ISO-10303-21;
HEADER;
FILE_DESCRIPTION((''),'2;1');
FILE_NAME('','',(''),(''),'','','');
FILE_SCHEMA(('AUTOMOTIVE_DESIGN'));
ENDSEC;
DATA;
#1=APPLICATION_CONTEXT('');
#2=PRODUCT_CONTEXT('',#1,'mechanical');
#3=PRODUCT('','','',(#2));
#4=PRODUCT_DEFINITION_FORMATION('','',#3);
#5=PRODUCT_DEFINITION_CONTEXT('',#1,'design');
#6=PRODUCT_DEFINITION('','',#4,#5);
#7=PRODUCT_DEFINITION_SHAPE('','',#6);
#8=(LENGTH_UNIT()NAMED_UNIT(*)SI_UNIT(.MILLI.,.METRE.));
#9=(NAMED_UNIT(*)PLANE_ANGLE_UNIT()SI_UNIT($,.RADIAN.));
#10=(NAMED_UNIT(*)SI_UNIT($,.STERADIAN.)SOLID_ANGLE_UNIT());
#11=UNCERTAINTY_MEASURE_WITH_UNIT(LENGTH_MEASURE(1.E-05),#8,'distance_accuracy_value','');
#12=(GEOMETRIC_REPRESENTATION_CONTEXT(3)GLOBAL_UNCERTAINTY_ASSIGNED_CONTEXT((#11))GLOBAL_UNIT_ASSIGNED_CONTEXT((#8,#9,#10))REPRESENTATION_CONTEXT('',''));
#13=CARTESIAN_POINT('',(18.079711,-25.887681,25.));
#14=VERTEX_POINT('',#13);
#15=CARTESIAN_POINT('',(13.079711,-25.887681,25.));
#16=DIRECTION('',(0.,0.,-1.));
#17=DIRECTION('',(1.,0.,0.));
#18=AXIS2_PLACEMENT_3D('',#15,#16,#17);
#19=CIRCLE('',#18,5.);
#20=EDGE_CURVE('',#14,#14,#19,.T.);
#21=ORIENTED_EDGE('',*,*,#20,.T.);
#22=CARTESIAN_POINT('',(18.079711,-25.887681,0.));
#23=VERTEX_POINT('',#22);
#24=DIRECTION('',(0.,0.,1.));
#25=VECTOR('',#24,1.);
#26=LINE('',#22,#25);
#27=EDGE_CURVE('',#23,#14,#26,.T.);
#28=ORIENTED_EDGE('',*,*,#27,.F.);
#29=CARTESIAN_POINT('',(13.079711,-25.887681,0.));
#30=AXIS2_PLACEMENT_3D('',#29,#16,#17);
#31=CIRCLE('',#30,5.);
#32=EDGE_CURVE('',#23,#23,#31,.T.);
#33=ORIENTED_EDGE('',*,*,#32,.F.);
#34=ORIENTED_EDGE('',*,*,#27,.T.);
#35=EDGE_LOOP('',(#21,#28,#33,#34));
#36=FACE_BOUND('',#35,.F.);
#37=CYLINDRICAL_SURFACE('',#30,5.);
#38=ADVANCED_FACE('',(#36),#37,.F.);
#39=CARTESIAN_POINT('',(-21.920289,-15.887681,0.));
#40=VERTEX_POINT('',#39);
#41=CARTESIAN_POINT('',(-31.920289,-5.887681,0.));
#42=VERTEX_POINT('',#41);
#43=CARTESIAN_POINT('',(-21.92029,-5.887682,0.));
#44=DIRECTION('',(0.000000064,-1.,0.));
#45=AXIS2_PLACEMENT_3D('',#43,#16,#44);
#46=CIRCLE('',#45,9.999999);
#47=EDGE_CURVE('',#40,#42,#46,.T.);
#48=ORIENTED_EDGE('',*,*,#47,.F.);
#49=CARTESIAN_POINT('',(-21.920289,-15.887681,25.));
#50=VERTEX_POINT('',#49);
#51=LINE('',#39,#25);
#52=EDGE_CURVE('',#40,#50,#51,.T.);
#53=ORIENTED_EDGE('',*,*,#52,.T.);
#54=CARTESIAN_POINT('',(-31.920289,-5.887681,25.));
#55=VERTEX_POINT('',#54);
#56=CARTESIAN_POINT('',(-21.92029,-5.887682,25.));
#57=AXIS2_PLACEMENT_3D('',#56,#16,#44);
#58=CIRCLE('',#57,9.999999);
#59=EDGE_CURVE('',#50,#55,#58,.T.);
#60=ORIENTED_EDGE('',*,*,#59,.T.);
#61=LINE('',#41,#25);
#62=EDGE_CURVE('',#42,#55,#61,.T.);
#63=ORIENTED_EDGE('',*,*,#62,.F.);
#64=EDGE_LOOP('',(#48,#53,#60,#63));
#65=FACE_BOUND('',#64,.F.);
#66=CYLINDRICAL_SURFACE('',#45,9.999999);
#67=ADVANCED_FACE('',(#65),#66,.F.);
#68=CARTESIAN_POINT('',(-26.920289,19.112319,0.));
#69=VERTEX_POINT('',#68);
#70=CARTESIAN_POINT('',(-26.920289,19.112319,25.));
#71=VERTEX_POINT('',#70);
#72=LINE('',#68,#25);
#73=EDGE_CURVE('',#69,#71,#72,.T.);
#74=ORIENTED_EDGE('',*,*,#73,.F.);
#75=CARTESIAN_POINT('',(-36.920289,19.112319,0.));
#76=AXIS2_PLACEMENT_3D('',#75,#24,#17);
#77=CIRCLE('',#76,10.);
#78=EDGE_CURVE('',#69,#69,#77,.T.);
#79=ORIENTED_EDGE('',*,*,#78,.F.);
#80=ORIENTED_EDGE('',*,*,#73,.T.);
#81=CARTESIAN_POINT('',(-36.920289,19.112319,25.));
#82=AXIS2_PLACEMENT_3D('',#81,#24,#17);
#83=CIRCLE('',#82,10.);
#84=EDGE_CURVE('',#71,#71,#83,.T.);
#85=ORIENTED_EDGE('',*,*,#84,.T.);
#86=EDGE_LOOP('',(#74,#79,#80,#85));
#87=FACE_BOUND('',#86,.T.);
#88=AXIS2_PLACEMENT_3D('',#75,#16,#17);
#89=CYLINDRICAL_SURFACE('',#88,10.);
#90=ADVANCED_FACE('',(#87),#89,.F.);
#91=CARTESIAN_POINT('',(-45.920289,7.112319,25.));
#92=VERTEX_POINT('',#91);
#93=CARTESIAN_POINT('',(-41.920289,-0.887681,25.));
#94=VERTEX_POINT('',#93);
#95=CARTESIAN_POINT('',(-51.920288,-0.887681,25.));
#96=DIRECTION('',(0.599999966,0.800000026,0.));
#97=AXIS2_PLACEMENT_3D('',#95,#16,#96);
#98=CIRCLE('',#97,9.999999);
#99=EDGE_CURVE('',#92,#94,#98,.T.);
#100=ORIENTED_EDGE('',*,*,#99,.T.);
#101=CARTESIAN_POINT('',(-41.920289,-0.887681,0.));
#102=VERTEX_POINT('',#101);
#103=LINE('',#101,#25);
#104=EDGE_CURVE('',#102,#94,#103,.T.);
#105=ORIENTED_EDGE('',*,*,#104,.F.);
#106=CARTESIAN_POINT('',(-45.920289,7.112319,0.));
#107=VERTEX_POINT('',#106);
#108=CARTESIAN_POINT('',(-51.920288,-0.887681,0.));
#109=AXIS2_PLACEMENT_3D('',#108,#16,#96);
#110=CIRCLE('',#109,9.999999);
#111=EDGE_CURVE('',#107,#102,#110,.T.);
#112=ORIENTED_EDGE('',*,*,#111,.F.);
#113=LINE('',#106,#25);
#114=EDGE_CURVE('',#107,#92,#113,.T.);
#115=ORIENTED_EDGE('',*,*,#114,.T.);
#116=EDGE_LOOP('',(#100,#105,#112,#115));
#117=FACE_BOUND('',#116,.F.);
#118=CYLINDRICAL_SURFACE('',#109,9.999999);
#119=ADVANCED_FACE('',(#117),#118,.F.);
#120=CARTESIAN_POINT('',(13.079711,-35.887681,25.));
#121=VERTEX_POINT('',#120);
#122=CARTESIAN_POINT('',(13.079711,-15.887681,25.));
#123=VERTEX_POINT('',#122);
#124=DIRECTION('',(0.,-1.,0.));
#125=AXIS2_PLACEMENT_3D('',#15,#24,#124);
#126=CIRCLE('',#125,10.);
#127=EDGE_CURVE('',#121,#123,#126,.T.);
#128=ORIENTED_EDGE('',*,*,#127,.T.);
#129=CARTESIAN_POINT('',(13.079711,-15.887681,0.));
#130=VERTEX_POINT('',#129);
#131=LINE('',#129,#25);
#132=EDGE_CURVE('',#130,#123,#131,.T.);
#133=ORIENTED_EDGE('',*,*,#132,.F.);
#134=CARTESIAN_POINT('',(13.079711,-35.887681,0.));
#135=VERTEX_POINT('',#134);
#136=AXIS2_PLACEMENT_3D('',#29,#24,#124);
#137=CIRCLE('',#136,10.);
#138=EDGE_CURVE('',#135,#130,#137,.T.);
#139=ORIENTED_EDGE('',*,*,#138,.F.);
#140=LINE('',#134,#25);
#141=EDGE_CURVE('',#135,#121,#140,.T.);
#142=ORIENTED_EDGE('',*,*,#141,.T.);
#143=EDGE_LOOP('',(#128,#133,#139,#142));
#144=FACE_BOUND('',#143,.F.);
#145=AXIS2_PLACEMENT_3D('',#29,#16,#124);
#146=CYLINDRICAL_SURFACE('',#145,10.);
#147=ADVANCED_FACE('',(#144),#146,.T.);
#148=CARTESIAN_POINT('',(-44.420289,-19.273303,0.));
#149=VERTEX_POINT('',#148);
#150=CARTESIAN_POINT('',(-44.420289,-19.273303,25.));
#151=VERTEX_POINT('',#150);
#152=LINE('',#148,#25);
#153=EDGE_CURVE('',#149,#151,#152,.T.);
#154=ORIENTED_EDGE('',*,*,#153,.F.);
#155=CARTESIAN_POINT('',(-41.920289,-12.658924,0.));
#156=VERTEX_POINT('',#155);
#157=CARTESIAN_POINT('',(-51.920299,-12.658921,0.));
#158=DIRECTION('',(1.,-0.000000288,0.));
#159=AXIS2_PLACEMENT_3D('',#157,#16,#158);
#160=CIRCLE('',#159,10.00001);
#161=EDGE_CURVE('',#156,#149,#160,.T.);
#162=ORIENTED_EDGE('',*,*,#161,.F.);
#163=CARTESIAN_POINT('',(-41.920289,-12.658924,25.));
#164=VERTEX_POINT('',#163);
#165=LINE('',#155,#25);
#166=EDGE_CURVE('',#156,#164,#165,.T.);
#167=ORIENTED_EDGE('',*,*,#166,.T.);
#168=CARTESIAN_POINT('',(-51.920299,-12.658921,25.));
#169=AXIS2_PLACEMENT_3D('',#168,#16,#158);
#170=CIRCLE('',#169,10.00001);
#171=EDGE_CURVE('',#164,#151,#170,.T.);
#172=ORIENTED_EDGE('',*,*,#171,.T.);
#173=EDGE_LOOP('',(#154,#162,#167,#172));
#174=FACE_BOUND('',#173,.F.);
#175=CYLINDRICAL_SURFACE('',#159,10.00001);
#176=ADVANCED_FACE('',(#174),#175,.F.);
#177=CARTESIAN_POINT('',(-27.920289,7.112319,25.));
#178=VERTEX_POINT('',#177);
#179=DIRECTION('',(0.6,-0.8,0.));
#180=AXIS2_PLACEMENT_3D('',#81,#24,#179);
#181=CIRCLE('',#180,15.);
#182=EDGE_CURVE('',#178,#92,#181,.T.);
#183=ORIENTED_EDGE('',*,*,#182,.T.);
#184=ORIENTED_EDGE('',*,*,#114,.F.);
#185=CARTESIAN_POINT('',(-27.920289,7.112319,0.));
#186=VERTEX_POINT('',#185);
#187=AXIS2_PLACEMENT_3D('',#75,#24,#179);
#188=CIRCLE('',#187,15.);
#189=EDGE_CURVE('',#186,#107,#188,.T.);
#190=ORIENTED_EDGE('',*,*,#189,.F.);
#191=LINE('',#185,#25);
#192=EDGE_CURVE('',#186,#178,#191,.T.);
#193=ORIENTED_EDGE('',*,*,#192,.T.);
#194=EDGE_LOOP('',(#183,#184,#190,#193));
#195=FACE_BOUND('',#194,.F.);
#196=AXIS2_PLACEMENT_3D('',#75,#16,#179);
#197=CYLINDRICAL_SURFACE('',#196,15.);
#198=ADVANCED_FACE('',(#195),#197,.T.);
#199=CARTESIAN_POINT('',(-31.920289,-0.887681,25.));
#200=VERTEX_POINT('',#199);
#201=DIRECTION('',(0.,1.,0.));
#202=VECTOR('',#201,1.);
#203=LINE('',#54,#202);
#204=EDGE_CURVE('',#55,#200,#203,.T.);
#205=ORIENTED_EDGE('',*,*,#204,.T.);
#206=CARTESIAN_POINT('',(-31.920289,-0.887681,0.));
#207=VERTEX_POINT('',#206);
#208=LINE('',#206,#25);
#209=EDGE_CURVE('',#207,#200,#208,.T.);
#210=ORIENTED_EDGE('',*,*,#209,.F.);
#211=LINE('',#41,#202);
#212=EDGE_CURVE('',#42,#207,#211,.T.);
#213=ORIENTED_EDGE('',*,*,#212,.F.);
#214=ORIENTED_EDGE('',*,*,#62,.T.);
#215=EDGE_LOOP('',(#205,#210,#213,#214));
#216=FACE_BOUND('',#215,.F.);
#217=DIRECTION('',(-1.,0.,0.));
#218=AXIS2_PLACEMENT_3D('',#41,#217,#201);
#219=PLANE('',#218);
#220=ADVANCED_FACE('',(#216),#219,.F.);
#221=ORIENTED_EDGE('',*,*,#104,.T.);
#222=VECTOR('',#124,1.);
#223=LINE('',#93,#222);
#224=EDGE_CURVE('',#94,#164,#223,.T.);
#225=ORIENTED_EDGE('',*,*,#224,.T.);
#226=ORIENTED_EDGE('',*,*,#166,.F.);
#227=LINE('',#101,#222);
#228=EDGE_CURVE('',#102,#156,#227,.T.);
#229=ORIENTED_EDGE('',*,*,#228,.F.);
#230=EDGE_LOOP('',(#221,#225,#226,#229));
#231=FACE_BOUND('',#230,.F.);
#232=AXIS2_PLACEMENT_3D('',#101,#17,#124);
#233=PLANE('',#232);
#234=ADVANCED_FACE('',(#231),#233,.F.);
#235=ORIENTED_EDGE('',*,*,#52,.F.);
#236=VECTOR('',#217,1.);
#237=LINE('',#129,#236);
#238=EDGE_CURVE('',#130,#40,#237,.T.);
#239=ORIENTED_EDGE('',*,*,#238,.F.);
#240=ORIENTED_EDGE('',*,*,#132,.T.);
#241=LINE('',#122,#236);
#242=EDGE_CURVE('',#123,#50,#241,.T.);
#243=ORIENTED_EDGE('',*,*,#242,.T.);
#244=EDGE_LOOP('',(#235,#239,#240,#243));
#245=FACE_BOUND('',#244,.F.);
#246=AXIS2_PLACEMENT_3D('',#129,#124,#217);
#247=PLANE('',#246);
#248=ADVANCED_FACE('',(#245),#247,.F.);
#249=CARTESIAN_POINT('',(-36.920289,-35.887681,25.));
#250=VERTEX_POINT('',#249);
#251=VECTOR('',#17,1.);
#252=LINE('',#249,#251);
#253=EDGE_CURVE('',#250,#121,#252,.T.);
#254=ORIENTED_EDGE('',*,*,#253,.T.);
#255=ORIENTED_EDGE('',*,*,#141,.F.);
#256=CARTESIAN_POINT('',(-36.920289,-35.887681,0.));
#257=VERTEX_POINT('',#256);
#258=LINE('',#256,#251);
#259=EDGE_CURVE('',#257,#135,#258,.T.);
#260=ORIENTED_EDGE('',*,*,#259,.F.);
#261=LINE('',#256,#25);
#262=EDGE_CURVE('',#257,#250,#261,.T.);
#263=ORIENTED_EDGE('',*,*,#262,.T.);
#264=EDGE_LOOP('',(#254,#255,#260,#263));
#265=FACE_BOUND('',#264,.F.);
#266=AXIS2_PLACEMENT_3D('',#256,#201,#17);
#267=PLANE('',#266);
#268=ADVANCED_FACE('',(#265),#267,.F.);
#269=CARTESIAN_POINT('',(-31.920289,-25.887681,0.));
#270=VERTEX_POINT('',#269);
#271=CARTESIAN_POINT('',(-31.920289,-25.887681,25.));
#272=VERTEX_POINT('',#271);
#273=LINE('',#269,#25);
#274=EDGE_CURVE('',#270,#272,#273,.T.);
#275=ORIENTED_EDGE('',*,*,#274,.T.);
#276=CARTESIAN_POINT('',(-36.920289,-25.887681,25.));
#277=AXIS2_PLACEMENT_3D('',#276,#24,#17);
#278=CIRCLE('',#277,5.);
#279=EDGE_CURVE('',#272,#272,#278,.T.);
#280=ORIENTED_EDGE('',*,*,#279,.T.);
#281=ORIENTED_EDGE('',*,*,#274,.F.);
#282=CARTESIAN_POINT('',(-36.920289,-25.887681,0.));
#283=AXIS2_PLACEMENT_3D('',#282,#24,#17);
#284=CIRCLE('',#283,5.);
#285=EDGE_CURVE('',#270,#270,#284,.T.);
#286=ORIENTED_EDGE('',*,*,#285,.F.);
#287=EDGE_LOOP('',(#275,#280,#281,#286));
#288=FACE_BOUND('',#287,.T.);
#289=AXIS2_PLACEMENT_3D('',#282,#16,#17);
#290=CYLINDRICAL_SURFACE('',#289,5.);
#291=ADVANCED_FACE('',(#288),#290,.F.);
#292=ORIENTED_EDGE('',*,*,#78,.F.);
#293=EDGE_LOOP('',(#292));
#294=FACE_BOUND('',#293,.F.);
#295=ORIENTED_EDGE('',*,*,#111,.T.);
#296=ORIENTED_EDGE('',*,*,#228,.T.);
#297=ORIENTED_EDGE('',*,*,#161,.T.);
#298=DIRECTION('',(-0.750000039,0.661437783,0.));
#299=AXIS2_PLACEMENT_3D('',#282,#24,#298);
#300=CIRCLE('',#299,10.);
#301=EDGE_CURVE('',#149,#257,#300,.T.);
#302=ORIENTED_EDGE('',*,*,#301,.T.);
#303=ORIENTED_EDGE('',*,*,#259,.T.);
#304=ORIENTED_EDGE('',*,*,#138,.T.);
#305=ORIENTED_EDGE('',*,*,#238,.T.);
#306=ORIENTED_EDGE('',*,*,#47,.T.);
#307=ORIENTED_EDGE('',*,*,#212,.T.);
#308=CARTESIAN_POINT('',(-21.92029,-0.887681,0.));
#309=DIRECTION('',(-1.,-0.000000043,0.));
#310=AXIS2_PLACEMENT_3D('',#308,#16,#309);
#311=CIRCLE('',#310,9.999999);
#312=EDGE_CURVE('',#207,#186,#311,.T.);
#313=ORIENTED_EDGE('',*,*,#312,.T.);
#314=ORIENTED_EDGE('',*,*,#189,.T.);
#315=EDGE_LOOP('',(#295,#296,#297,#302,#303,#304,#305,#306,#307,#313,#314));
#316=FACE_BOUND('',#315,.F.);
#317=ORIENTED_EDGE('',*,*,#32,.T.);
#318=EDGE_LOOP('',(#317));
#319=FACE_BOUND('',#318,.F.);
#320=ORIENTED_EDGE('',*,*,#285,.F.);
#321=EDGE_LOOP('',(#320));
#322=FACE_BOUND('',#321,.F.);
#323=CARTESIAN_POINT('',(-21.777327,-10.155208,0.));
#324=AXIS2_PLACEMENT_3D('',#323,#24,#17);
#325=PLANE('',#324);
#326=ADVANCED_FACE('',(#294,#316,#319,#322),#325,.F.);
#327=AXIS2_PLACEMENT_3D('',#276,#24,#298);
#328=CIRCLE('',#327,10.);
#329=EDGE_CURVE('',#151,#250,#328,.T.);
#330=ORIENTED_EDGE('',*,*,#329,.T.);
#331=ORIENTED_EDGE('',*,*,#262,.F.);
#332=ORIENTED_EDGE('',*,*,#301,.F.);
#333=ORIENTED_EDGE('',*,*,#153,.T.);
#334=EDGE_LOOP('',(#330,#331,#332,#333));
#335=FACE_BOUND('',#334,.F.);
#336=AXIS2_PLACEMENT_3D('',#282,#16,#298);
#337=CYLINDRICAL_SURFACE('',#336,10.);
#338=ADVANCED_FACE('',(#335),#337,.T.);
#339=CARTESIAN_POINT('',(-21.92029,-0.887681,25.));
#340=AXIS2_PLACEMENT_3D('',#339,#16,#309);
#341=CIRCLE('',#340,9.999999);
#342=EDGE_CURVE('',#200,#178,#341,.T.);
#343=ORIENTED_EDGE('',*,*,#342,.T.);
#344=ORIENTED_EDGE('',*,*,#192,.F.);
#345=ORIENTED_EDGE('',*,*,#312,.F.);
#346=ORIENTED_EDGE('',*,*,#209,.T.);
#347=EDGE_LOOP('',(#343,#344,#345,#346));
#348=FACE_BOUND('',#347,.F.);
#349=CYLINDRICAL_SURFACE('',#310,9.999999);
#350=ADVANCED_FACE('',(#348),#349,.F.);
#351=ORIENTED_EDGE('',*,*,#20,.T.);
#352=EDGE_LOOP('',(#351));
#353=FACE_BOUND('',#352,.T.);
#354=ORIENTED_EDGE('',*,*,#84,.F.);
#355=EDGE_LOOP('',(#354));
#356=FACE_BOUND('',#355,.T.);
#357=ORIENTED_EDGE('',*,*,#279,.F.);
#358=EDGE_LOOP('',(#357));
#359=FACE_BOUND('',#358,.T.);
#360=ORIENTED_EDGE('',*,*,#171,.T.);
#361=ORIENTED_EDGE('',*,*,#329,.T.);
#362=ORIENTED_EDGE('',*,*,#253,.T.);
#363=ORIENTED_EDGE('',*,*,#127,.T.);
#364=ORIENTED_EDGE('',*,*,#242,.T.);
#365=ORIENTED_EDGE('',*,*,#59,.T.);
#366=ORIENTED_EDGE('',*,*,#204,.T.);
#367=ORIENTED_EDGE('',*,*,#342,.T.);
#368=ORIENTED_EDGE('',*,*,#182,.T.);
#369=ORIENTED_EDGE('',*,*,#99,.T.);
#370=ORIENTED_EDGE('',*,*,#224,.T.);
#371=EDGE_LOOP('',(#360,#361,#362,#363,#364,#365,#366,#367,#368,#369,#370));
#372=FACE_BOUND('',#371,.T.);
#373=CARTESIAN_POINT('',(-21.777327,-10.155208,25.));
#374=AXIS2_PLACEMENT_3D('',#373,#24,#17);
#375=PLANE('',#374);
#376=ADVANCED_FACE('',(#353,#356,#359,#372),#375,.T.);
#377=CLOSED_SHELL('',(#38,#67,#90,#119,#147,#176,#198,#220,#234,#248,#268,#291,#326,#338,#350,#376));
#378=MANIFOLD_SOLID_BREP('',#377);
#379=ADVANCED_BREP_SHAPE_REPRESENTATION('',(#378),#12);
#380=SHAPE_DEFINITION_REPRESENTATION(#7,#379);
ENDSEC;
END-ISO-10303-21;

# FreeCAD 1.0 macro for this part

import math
import FreeCAD as App
import Part
import Sketcher

V = App.Vector
Q = App.Units.Quantity

doc = App.newDocument("Part")
params = doc.addObject("Spreadsheet::Sheet", "Params")
for row, (alias, value) in enumerate([
    ("sketch1_diameter", "10 mm"),
    ("sketch1_diameter2", "20 mm"),
    ("sketch1_radius", "15 mm"),
    ("sketch1_width", "50 mm"),
    ("sketch1_width2", "35 mm"),
    ("pad1_length", "25 mm"),
], start=1):
    params.set(f"A{row}", alias)
    params.set(f"B{row}", "=" + value)
    params.setAlias(f"B{row}", alias)

body = doc.addObject("PartDesign::Body", "Body")

# Sketch on XY plane
sketch1 = body.newObject("Sketcher::SketchObject", "Sketch")
sketch1.AttachmentSupport = (doc.getObject("XY_Plane"), [""])
sketch1.MapMode = "FlatFace"
sketch1.addGeometry([
    Part.ArcOfCircle(Part.Circle(V(-37, -26, 0), V(0, 0, 1), 10), math.radians(139), math.radians(270)),  # 0
    Part.LineSegment(V(-37, -36, 0), V(13, -36, 0)),  # 1
    Part.ArcOfCircle(Part.Circle(V(13, -26, 0), V(0, 0, 1), 10), math.radians(-90), math.radians(90)),  # 2
    Part.LineSegment(V(13, -16, 0), V(-22, -16, 0)),  # 3
    Part.ArcOfCircle(Part.Circle(V(-22, -6, 0), V(0, 0, 1), 10), math.radians(180), math.radians(270)),  # 4
    Part.LineSegment(V(-32, -6, 0), V(-32, -1, 0)),  # 5
    Part.ArcOfCircle(Part.Circle(V(-22, -1, 0), V(0, 0, 1), 10), math.radians(127), math.radians(180)),  # 6
    Part.ArcOfCircle(Part.Circle(V(-37, 19, 0), V(0, 0, 1), 15), math.radians(-53), math.radians(233)),  # 7
    Part.ArcOfCircle(Part.Circle(V(-52, -1, 0), V(0, 0, 1), 10), math.radians(0), math.radians(53)),  # 8
    Part.LineSegment(V(-42, -1, 0), V(-42, -13, 0)),  # 9
    Part.ArcOfCircle(Part.Circle(V(-52, -13, 0), V(0, 0, 1), 10), math.radians(-41), math.radians(0)),  # 10
    Part.Circle(V(-37, -26, 0), V(0, 0, 1), 5),  # 11
    Part.Circle(V(13, -26, 0), V(0, 0, 1), 5),  # 12
    Part.Circle(V(-37, 19, 0), V(0, 0, 1), 10),  # 13
], False)
sketch1.addConstraint([
    Sketcher.Constraint("Tangent", 0, 2, 1, 1),
    Sketcher.Constraint("Tangent", 1, 2, 2, 1),
    Sketcher.Constraint("Tangent", 2, 2, 3, 1),
    Sketcher.Constraint("Tangent", 3, 2, 4, 2),
    Sketcher.Constraint("Tangent", 4, 1, 5, 1),
    Sketcher.Constraint("Tangent", 5, 2, 6, 2),
    Sketcher.Constraint("Tangent", 6, 1, 7, 1),
    Sketcher.Constraint("Tangent", 7, 2, 8, 2),
    Sketcher.Constraint("Tangent", 8, 1, 9, 1),
    Sketcher.Constraint("Tangent", 9, 2, 10, 2),
    Sketcher.Constraint("Tangent", 10, 1, 0, 1),
    Sketcher.Constraint("Horizontal", 1),
    Sketcher.Constraint("Horizontal", 3),
    Sketcher.Constraint("Vertical", 5),
    Sketcher.Constraint("Vertical", 9),
    Sketcher.Constraint("Coincident", 11, 3, 0, 3),
    Sketcher.Constraint("Coincident", 12, 3, 2, 3),
    Sketcher.Constraint("Coincident", 13, 3, 7, 3),
    Sketcher.Constraint("Equal", 0, 2),
    Sketcher.Constraint("Equal", 2, 4),
    Sketcher.Constraint("Equal", 4, 6),
    Sketcher.Constraint("Equal", 6, 8),
    Sketcher.Constraint("Equal", 11, 12),
    Sketcher.Constraint("Equal", 8, 13),
    Sketcher.Constraint("Horizontal", 6, 3, 8, 3),
    Sketcher.Constraint("Vertical", 0, 3, 7, 3),
    Sketcher.Constraint("Diameter", 11, Q("10 mm")),
    Sketcher.Constraint("Diameter", 13, Q("20 mm")),
    Sketcher.Constraint("Radius", 7, Q("15 mm")),
    Sketcher.Constraint("DistanceX", 1, 1, 1, 2, Q("50 mm")),
    Sketcher.Constraint("DistanceX", 3, 2, 3, 1, Q("35 mm")),
    Sketcher.Constraint("DistanceY", 5, 1, 5, 2, Q("5 mm")),
    Sketcher.Constraint("DistanceX", 10, 1, 9, 2, Q("2.5 mm")),
    Sketcher.Constraint("DistanceX", 10, 3, -1, 1, Q("51.920299 mm")),
    Sketcher.Constraint("DistanceY", 0, 3, -1, 1, Q("25.887681 mm")),
])
sketch1.setExpression("Constraints[26]", "Params.sketch1_diameter")
sketch1.setExpression("Constraints[27]", "Params.sketch1_diameter2")
sketch1.setExpression("Constraints[28]", "Params.sketch1_radius")
sketch1.setExpression("Constraints[29]", "Params.sketch1_width")
sketch1.setExpression("Constraints[30]", "Params.sketch1_width2")
pad1 = body.newObject("PartDesign::Pad", "Pad")
pad1.Profile = sketch1
pad1.setExpression("Length", "Params.pad1_length")

doc.recompute()
